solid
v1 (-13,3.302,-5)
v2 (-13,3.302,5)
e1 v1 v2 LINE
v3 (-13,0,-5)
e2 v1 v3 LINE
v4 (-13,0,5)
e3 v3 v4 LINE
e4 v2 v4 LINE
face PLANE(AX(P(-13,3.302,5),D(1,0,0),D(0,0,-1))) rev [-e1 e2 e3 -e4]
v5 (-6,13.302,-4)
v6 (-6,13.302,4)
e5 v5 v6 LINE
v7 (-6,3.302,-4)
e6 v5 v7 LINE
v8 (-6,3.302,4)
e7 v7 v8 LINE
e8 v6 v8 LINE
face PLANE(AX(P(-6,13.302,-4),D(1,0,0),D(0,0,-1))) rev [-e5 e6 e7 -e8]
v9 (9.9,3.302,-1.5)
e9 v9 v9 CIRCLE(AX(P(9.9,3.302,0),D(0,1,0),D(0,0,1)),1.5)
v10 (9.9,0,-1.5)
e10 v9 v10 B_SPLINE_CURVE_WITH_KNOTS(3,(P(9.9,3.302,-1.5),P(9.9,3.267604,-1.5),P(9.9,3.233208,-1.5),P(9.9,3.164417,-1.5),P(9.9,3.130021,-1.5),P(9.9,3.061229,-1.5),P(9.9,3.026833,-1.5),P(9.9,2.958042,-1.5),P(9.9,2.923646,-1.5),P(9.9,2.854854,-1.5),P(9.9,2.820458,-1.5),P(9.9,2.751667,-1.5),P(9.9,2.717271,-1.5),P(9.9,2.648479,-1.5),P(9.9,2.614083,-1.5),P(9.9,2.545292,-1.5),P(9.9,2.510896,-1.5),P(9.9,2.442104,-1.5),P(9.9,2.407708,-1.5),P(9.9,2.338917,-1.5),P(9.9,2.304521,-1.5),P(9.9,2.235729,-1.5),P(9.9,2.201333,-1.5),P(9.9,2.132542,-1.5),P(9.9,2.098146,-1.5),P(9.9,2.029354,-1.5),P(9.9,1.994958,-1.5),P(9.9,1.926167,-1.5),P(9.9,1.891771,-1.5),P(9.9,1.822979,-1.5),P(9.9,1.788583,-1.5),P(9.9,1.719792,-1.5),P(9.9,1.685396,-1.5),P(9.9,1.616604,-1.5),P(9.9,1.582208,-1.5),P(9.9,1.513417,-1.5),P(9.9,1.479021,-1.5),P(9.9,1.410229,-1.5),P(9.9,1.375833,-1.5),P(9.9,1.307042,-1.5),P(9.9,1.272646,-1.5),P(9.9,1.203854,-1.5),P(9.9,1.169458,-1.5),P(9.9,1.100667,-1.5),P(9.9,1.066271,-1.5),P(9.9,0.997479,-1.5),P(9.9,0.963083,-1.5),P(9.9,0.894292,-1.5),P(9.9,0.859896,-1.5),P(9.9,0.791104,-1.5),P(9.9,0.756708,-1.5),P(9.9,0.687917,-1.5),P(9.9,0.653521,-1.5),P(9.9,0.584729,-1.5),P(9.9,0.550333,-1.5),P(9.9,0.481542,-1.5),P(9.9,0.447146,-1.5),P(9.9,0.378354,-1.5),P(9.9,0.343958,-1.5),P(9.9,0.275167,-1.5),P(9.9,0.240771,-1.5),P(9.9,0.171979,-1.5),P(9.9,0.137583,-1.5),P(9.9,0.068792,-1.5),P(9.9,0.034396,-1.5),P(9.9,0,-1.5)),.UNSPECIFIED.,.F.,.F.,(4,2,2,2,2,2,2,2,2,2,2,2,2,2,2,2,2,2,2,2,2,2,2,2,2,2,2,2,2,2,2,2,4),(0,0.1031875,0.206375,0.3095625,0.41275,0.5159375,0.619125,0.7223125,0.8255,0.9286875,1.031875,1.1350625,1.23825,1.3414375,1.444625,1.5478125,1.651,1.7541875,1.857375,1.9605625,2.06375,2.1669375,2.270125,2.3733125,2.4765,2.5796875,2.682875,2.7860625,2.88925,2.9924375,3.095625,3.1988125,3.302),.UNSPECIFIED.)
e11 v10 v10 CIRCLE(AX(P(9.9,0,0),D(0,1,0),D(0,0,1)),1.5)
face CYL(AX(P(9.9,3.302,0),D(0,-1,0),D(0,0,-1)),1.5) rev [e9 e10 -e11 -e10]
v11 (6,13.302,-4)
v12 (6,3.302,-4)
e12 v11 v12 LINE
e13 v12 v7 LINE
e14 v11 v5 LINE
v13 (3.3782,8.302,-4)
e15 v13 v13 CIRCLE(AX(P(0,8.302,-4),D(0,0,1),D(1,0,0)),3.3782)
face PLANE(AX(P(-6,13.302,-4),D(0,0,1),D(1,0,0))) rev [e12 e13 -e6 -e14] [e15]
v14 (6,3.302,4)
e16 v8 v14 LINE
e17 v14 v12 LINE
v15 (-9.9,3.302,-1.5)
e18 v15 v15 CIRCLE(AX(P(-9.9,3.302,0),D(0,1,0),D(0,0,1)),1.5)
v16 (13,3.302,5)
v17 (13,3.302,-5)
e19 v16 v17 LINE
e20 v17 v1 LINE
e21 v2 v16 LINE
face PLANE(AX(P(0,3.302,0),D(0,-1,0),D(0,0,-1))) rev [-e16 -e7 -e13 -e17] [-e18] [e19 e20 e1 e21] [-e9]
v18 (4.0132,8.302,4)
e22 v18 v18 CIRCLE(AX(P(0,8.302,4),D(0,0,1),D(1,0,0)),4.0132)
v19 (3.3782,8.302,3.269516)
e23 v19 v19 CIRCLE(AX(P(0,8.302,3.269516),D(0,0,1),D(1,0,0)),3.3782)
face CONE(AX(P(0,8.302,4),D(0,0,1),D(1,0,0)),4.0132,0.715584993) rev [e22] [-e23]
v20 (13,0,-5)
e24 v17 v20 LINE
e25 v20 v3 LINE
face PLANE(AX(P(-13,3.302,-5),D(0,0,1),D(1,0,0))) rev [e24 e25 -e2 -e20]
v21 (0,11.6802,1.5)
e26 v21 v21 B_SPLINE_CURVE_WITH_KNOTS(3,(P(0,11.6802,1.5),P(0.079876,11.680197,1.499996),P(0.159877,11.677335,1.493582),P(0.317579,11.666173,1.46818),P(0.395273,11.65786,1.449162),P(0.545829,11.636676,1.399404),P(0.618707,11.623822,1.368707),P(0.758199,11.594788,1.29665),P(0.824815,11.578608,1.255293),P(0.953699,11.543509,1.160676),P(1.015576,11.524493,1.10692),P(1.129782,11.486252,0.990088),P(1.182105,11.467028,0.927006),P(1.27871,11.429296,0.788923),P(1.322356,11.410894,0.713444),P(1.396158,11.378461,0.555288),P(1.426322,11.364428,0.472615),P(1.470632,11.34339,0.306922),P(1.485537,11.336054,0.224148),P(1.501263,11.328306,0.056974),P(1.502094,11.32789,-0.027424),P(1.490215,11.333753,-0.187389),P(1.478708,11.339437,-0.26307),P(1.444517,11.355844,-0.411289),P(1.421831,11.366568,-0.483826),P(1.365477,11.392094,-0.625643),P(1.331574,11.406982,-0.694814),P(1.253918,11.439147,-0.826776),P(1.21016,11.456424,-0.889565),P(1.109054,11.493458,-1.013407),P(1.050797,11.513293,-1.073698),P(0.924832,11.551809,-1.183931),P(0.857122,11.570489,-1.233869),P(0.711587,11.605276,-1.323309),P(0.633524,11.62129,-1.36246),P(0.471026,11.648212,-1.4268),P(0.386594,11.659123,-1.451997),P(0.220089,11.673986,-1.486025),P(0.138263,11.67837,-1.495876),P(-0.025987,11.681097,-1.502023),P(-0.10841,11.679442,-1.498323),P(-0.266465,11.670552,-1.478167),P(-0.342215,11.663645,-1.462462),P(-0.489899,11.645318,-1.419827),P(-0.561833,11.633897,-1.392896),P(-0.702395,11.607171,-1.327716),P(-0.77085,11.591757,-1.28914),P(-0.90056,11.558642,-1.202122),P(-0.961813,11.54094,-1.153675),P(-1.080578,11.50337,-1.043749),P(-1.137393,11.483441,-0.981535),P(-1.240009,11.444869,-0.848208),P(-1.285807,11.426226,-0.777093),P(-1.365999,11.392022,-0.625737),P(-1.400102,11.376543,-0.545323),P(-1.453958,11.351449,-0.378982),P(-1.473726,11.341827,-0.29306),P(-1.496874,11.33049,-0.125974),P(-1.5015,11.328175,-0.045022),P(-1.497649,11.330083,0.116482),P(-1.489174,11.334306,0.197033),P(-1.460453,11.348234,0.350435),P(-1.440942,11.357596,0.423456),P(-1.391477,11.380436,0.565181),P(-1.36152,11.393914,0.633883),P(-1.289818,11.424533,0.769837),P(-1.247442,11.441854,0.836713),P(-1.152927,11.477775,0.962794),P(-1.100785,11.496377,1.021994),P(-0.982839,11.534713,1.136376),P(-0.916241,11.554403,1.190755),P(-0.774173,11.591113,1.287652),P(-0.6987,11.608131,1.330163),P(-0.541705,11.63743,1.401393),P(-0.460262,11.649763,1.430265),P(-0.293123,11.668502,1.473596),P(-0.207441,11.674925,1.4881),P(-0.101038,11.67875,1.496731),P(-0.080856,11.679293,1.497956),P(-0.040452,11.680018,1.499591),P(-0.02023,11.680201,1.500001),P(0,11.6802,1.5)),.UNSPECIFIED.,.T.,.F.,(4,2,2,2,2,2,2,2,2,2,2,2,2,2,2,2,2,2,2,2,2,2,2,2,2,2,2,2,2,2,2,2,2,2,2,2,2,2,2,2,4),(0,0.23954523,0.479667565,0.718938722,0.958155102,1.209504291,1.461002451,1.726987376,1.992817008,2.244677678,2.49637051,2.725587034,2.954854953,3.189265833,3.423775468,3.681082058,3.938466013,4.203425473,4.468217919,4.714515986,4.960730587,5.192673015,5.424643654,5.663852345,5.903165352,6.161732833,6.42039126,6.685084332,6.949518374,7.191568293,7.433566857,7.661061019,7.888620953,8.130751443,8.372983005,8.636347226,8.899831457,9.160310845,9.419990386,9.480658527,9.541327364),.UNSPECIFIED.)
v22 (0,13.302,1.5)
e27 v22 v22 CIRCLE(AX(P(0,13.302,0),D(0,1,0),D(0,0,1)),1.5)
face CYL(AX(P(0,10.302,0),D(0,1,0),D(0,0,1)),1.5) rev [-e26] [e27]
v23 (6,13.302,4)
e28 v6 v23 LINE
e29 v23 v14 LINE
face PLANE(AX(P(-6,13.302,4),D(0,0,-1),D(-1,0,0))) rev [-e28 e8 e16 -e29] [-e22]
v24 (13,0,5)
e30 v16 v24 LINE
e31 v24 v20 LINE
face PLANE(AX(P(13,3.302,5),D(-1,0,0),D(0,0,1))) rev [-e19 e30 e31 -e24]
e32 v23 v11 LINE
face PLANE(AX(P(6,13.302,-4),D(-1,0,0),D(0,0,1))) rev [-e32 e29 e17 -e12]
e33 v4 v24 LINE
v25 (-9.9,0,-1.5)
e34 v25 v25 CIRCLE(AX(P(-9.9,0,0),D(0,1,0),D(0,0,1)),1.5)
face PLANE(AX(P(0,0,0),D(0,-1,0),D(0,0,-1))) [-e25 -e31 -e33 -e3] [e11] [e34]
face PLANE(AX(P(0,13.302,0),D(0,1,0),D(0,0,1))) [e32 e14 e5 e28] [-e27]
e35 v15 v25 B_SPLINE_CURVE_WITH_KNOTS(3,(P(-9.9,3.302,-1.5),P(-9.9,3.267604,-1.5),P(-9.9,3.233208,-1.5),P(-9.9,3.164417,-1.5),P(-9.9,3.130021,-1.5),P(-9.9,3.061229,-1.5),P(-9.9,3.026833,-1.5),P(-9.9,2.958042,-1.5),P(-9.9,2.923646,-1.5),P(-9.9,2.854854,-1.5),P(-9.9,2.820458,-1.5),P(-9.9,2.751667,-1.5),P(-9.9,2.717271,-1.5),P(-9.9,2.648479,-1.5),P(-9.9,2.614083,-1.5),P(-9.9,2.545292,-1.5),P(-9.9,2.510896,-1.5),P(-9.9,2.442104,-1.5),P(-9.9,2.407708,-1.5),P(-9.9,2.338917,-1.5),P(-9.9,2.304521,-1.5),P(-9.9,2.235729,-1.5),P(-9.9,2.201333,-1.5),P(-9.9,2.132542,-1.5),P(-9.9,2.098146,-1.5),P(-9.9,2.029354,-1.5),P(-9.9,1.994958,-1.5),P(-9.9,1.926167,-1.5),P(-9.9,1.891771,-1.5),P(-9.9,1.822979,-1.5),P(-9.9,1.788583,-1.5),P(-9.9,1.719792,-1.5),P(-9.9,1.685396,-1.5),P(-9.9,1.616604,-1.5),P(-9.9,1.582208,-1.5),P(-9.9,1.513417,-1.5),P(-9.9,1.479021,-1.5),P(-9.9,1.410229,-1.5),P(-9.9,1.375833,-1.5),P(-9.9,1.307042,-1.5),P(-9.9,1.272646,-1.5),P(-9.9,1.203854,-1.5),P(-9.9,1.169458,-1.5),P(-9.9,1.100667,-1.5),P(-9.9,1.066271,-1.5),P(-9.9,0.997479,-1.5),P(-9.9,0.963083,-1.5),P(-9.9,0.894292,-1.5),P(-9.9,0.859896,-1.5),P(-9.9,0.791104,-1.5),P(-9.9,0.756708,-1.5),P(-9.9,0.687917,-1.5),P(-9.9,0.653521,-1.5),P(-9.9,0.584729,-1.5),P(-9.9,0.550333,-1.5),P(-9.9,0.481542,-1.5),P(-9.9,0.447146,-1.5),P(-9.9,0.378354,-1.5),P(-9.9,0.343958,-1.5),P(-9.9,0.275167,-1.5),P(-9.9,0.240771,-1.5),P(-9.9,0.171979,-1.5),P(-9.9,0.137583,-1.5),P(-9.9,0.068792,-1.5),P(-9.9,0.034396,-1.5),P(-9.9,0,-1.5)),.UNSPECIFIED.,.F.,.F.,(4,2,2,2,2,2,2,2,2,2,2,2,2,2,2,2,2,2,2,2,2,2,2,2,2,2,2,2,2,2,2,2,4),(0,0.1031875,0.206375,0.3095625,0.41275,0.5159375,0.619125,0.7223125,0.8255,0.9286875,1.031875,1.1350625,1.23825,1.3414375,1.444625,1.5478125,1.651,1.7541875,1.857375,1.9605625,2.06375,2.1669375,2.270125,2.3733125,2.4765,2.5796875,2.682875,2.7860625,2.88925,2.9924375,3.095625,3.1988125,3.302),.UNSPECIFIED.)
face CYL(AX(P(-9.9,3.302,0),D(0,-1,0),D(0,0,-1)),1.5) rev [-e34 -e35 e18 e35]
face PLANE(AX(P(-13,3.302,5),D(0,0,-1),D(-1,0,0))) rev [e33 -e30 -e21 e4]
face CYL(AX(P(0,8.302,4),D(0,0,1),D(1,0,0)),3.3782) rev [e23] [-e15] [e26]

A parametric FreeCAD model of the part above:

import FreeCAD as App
import Part
import Sketcher


def add_polygon(sketch, points):
    """Adds a closed chain of lines whose ends are joined by coincident constraints."""
    first, n = sketch.GeometryCount, len(points)
    for a, b in zip(points, points[1:] + points[:1]):
        sketch.addGeometry(Part.LineSegment(App.Vector(*a, 0), App.Vector(*b, 0)), False)
    for i in range(n):
        sketch.addConstraint(Sketcher.Constraint("Coincident", first + i, 2, first + (i + 1) % n, 1))

doc = App.newDocument("Part")
body = doc.addObject("PartDesign::Body", "Body")

# Sketch on XZ plane
sketch1 = body.newObject("Sketcher::SketchObject", "Sketch")
sketch1.AttachmentSupport = (doc.getObject("XZ_Plane"), [""])
sketch1.MapMode = "FlatFace"
add_polygon(sketch1, [(-13, -5), (-13, 5), (13, 5), (13, -5)])  # lines 0-3
sketch1.addGeometry(Part.Circle(App.Vector(-9.9, 0, 0), App.Vector(0, 0, 1), 1.5), False)  # 4
sketch1.addGeometry(Part.Circle(App.Vector(9.9, 0, 0), App.Vector(0, 0, 1), 1.5), False)  # 5
sketch1.addConstraint([
    Sketcher.Constraint("Vertical", 0),
    Sketcher.Constraint("Horizontal", 1),
    Sketcher.Constraint("Vertical", 2),
    Sketcher.Constraint("Horizontal", 3),
    Sketcher.Constraint("Equal", 4, 5),
    Sketcher.Constraint("Symmetric", 4, 3, 5, 3, -1, 1),
    Sketcher.Constraint("Symmetric", 0, 2, 2, 2, -1, 1),
    Sketcher.Constraint("PointOnObject", 4, 3, -1),
    Sketcher.Constraint("Diameter", 4, 3.0),
    Sketcher.Constraint("DistanceX", 1, 1, 1, 2, 26.0),
    Sketcher.Constraint("DistanceY", 0, 1, 0, 2, 10.0),
    Sketcher.Constraint("DistanceX", 4, 3, -1, 1, 9.9),
])
pad1 = body.newObject("PartDesign::Pad", "Pad")
pad1.Profile = sketch1
pad1.Length = 3.302
pad1.Reversed = True

# Sketch on XZ plane
sketch2 = body.newObject("Sketcher::SketchObject", "Sketch001")
sketch2.AttachmentSupport = (doc.getObject("XZ_Plane"), [""])
sketch2.MapMode = "FlatFace"
sketch2.AttachmentOffset = App.Placement(App.Vector(0, 0, -3.302), App.Rotation())
add_polygon(sketch2, [(-6, -4), (-6, 4), (6, 4), (6, -4)])  # lines 0-3
sketch2.addConstraint([
    Sketcher.Constraint("Vertical", 0),
    Sketcher.Constraint("Horizontal", 1),
    Sketcher.Constraint("Vertical", 2),
    Sketcher.Constraint("Horizontal", 3),
    Sketcher.Constraint("Symmetric", 0, 2, 2, 2, -1, 1),
    Sketcher.Constraint("DistanceX", 1, 1, 1, 2, 12.0),
    Sketcher.Constraint("DistanceY", 0, 1, 0, 2, 8.0),
])
pad2 = body.newObject("PartDesign::Pad", "Pad001")
pad2.Profile = sketch2
pad2.Length = 10
pad2.Reversed = True

# Sketch on XY plane
sketch3 = body.newObject("Sketcher::SketchObject", "Sketch002")
sketch3.AttachmentSupport = (doc.getObject("XY_Plane"), [""])
sketch3.MapMode = "FlatFace"
sketch3.AttachmentOffset = App.Placement(App.Vector(0, 0, 4), App.Rotation())
sketch3.addGeometry(Part.Circle(App.Vector(0, 8.3, 0), App.Vector(0, 0, 1), 3.4), False)
sketch3.addConstraint([
    Sketcher.Constraint("PointOnObject", 0, 3, -2),
    Sketcher.Constraint("Diameter", 0, 6.7564),
    Sketcher.Constraint("DistanceY", -1, 1, 0, 3, 8.302),
])
doc.recompute()
hole = body.newObject("PartDesign::Hole", "Hole")
hole.Profile = sketch3
hole.ThreadType = "None"
hole.Diameter = 6.7564
hole.DepthType = "ThroughAll"
hole.HoleCutType = "Countersink"
hole.HoleCutDiameter = 8.0264
hole.HoleCutCountersinkAngle = 82

# Sketch on XZ plane
sketch4 = body.newObject("Sketcher::SketchObject", "Sketch003")
sketch4.AttachmentSupport = (doc.getObject("XZ_Plane"), [""])
sketch4.MapMode = "FlatFace"
sketch4.AttachmentOffset = App.Placement(App.Vector(0, 0, -13.302), App.Rotation())
sketch4.addGeometry(Part.Circle(App.Vector(0, 0, 0), App.Vector(0, 0, 1), 1.5), False)
sketch4.addConstraint([
    Sketcher.Constraint("Coincident", 0, 3, -1, 1),
    Sketcher.Constraint("Diameter", 0, 3.0),
])
pocket1 = body.newObject("PartDesign::Pocket", "Pocket")
pocket1.Profile = sketch4
pocket1.Length = 3
pocket1.Reversed = True

doc.recompute()
